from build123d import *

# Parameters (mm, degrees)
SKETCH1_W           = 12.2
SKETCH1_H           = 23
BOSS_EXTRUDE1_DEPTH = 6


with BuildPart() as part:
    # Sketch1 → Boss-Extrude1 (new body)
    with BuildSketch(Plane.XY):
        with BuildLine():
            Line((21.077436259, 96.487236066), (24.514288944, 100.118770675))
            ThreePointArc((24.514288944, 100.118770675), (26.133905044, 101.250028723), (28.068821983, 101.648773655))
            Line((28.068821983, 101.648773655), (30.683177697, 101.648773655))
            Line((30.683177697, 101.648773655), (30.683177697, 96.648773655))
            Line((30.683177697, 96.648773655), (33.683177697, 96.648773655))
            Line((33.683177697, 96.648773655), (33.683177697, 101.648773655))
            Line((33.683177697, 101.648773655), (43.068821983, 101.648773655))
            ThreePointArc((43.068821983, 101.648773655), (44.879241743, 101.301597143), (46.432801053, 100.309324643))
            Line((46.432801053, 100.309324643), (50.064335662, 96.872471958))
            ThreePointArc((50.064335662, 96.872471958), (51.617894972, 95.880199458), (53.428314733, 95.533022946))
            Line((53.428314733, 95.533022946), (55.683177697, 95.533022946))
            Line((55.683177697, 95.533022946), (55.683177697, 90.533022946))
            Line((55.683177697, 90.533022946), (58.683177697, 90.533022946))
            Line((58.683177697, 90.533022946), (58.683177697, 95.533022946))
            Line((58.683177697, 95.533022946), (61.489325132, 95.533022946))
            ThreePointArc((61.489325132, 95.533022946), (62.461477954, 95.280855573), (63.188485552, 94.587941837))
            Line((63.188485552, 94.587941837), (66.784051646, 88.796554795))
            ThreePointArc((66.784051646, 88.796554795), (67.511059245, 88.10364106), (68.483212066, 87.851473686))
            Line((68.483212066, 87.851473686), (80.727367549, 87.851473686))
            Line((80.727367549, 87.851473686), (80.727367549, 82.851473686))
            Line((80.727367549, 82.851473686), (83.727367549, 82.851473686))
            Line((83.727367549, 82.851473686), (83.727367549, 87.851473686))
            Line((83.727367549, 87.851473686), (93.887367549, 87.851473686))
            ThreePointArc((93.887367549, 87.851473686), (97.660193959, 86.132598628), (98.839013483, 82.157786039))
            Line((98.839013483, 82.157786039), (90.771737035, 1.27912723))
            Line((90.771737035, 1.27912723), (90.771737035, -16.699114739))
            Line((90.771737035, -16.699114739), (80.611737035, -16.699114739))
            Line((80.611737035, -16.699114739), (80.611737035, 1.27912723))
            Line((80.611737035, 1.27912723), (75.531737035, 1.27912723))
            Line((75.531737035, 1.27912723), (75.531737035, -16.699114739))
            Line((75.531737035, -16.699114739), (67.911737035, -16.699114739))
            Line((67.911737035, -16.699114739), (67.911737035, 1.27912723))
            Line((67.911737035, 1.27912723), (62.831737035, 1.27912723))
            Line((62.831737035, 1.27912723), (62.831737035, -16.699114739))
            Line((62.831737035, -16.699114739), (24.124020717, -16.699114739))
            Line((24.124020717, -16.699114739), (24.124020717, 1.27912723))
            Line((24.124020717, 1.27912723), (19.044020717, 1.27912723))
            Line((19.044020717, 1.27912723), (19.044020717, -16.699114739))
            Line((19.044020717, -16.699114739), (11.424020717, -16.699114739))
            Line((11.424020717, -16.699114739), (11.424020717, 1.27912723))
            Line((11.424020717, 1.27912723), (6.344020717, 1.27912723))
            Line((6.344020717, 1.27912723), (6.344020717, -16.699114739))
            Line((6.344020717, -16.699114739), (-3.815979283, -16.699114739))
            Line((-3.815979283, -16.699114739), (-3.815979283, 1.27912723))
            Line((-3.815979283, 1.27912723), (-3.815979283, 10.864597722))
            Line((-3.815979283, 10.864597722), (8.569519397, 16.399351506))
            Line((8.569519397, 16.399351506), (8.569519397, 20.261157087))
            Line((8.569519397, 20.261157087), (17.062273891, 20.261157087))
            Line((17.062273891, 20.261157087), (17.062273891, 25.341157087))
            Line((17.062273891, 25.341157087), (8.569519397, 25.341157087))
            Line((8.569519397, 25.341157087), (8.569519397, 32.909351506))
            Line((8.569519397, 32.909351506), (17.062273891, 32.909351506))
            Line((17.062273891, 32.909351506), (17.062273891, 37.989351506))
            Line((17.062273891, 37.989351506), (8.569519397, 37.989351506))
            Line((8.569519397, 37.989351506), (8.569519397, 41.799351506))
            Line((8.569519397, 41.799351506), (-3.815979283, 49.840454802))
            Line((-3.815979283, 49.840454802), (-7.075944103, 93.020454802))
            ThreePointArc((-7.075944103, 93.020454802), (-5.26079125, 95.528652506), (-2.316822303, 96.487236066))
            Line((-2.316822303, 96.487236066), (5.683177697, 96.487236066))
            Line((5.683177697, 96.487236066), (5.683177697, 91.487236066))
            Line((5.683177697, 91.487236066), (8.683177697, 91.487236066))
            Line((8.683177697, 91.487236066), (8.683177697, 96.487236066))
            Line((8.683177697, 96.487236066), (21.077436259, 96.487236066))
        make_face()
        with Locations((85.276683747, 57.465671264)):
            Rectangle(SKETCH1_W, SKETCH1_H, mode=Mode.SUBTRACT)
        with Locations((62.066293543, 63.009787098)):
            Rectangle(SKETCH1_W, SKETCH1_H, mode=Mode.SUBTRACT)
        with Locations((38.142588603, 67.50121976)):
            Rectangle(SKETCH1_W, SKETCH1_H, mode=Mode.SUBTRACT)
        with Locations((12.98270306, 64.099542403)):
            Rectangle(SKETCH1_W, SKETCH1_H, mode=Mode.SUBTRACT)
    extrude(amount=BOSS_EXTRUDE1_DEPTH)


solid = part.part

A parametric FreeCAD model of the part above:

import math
import FreeCAD as App
import Part
import Sketcher

V = App.Vector
Q = App.Units.Quantity


def add_polygon(sketch, points):
    """Adds a closed chain of lines whose ends are joined by coincident constraints."""
    first, n = sketch.GeometryCount, len(points)
    for a, b in zip(points, points[1:] + points[:1]):
        sketch.addGeometry(Part.LineSegment(App.Vector(*a, 0), App.Vector(*b, 0)), False)
    for i in range(n):
        sketch.addConstraint(Sketcher.Constraint("Coincident", first + i, 2, first + (i + 1) % n, 1))

doc = App.newDocument("Part")
body = doc.addObject("PartDesign::Body", "Body")

sketch1 = body.newObject("Sketcher::SketchObject", "Sketch")
sketch1.AttachmentSupport = (doc.getObject("XY_Plane"), [""])
sketch1.MapMode = "FlatFace"
sketch1.addGeometry(Part.LineSegment(V(24.5, 100.1, 0), V(21.1, 96.5, 0)), False)
sketch1.addGeometry(Part.LineSegment(V(21.1, 96.5, 0), V(8.7, 96.5, 0)), False)
sketch1.addGeometry(Part.LineSegment(V(8.7, 96.5, 0), V(8.7, 91.5, 0)), False)
sketch1.addGeometry(Part.LineSegment(V(8.7, 91.5, 0), V(5.7, 91.5, 0)), False)
sketch1.addGeometry(Part.LineSegment(V(5.7, 91.5, 0), V(5.7, 96.5, 0)), False)
sketch1.addGeometry(Part.LineSegment(V(5.7, 96.5, 0), V(-2.3, 96.5, 0)), False)
sketch1.addGeometry(Part.ArcOfCircle(Part.Circle(V(-2.3, 91.5, 0), V(0, 0, 1), 5), math.radians(90), math.radians(162)), False)
sketch1.addGeometry(Part.LineSegment(V(-7.1, 93, 0), V(-3.8, 49.8, 0)), False)
sketch1.addGeometry(Part.LineSegment(V(-3.8, 49.8, 0), V(8.6, 41.8, 0)), False)
sketch1.addGeometry(Part.LineSegment(V(8.6, 41.8, 0), V(8.6, 38, 0)), False)
sketch1.addGeometry(Part.LineSegment(V(8.6, 38, 0), V(17.1, 38, 0)), False)
sketch1.addGeometry(Part.LineSegment(V(17.1, 38, 0), V(17.1, 32.9, 0)), False)
sketch1.addGeometry(Part.LineSegment(V(17.1, 32.9, 0), V(8.6, 32.9, 0)), False)
sketch1.addGeometry(Part.LineSegment(V(8.6, 32.9, 0), V(8.6, 25.3, 0)), False)
sketch1.addGeometry(Part.LineSegment(V(8.6, 25.3, 0), V(17.1, 25.3, 0)), False)
sketch1.addGeometry(Part.LineSegment(V(17.1, 25.3, 0), V(17.1, 20.3, 0)), False)
sketch1.addGeometry(Part.LineSegment(V(17.1, 20.3, 0), V(8.6, 20.3, 0)), False)
sketch1.addGeometry(Part.LineSegment(V(8.6, 20.3, 0), V(8.6, 16.4, 0)), False)
sketch1.addGeometry(Part.LineSegment(V(8.6, 16.4, 0), V(-3.8, 10.9, 0)), False)
sketch1.addGeometry(Part.LineSegment(V(-3.8, 10.9, 0), V(-3.8, -16.7, 0)), False)
sketch1.addGeometry(Part.LineSegment(V(-3.8, -16.7, 0), V(6.3, -16.7, 0)), False)
sketch1.addGeometry(Part.LineSegment(V(6.3, -16.7, 0), V(6.3, 1.3, 0)), False)
sketch1.addGeometry(Part.LineSegment(V(6.3, 1.3, 0), V(11.4, 1.3, 0)), False)
sketch1.addGeometry(Part.LineSegment(V(11.4, 1.3, 0), V(11.4, -16.7, 0)), False)
sketch1.addGeometry(Part.LineSegment(V(11.4, -16.7, 0), V(19, -16.7, 0)), False)
sketch1.addGeometry(Part.LineSegment(V(19, -16.7, 0), V(19, 1.3, 0)), False)
sketch1.addGeometry(Part.LineSegment(V(19, 1.3, 0), V(24.1, 1.3, 0)), False)
sketch1.addGeometry(Part.LineSegment(V(24.1, 1.3, 0), V(24.1, -16.7, 0)), False)
sketch1.addGeometry(Part.LineSegment(V(24.1, -16.7, 0), V(62.8, -16.7, 0)), False)
sketch1.addGeometry(Part.LineSegment(V(62.8, -16.7, 0), V(62.8, 1.3, 0)), False)
sketch1.addGeometry(Part.LineSegment(V(62.8, 1.3, 0), V(67.9, 1.3, 0)), False)
sketch1.addGeometry(Part.LineSegment(V(67.9, 1.3, 0), V(67.9, -16.7, 0)), False)
sketch1.addGeometry(Part.LineSegment(V(67.9, -16.7, 0), V(75.5, -16.7, 0)), False)
sketch1.addGeometry(Part.LineSegment(V(75.5, -16.7, 0), V(75.5, 1.3, 0)), False)
sketch1.addGeometry(Part.LineSegment(V(75.5, 1.3, 0), V(80.6, 1.3, 0)), False)
sketch1.addGeometry(Part.LineSegment(V(80.6, 1.3, 0), V(80.6, -16.7, 0)), False)
sketch1.addGeometry(Part.LineSegment(V(80.6, -16.7, 0), V(90.8, -16.7, 0)), False)
sketch1.addGeometry(Part.LineSegment(V(90.8, -16.7, 0), V(90.8, 1.3, 0)), False)
sketch1.addGeometry(Part.LineSegment(V(90.8, 1.3, 0), V(98.8, 82.2, 0)), False)
sketch1.addGeometry(Part.ArcOfCircle(Part.Circle(V(93.9, 82.9, 0), V(0, 0, 1), 5), math.radians(-8), math.radians(90)), False)
sketch1.addGeometry(Part.LineSegment(V(93.9, 87.9, 0), V(83.7, 87.9, 0)), False)
sketch1.addGeometry(Part.LineSegment(V(83.7, 87.9, 0), V(83.7, 82.9, 0)), False)
sketch1.addGeometry(Part.LineSegment(V(83.7, 82.9, 0), V(80.7, 82.9, 0)), False)
sketch1.addGeometry(Part.LineSegment(V(80.7, 82.9, 0), V(80.7, 87.9, 0)), False)
sketch1.addGeometry(Part.LineSegment(V(80.7, 87.9, 0), V(68.5, 87.9, 0)), False)
sketch1.addGeometry(Part.ArcOfCircle(Part.Circle(V(68.5, 89.9, 0), V(0, 0, 1), 2), math.radians(-148), math.radians(-90)), False)
sketch1.addGeometry(Part.LineSegment(V(66.8, 88.8, 0), V(63.2, 94.6, 0)), False)
sketch1.addGeometry(Part.ArcOfCircle(Part.Circle(V(61.5, 93.5, 0), V(0, 0, 1), 2), math.radians(32), math.radians(90)), False)
sketch1.addGeometry(Part.LineSegment(V(61.5, 95.5, 0), V(58.7, 95.5, 0)), False)
sketch1.addGeometry(Part.LineSegment(V(58.7, 95.5, 0), V(58.7, 90.5, 0)), False)
sketch1.addGeometry(Part.LineSegment(V(58.7, 90.5, 0), V(55.7, 90.5, 0)), False)
sketch1.addGeometry(Part.LineSegment(V(55.7, 90.5, 0), V(55.7, 95.5, 0)), False)
sketch1.addGeometry(Part.LineSegment(V(55.7, 95.5, 0), V(53.4, 95.5, 0)), False)
sketch1.addGeometry(Part.ArcOfCircle(Part.Circle(V(53.4, 100.4, 0), V(0, 0, 1), 4.9), math.radians(-133), math.radians(-90)), False)
sketch1.addGeometry(Part.LineSegment(V(50.1, 96.9, 0), V(46.4, 100.3, 0)), False)
sketch1.addGeometry(Part.ArcOfCircle(Part.Circle(V(43.1, 96.8, 0), V(0, 0, 1), 4.9), math.radians(47), math.radians(90)), False)
sketch1.addGeometry(Part.LineSegment(V(43.1, 101.6, 0), V(33.7, 101.6, 0)), False)
sketch1.addGeometry(Part.LineSegment(V(33.7, 101.6, 0), V(33.7, 96.6, 0)), False)
sketch1.addGeometry(Part.LineSegment(V(33.7, 96.6, 0), V(30.7, 96.6, 0)), False)
sketch1.addGeometry(Part.LineSegment(V(30.7, 96.6, 0), V(30.7, 101.6, 0)), False)
sketch1.addGeometry(Part.LineSegment(V(30.7, 101.6, 0), V(28.1, 101.6, 0)), False)
sketch1.addGeometry(Part.ArcOfCircle(Part.Circle(V(28.1, 96.8, 0), V(0, 0, 1), 4.9), math.radians(90), math.radians(137)), False)
add_polygon(sketch1, [(79.2, 46), (79.2, 69), (91.4, 69), (91.4, 46)])
add_polygon(sketch1, [(56, 51.5), (56, 74.5), (68.2, 74.5), (68.2, 51.5)])
add_polygon(sketch1, [(32, 56), (32, 79), (44.2, 79), (44.2, 56)])
add_polygon(sketch1, [(6.9, 52.6), (6.9, 75.6), (19.1, 75.6), (19.1, 52.6)])
sketch1.addConstraint([
    Sketcher.Constraint("Coincident", 0, 2, 1, 1),
    Sketcher.Constraint("Coincident", 1, 2, 2, 1),
    Sketcher.Constraint("Coincident", 2, 2, 3, 1),
    Sketcher.Constraint("Coincident", 3, 2, 4, 1),
    Sketcher.Constraint("Coincident", 4, 2, 5, 1),
    Sketcher.Constraint("Tangent", 5, 2, 6, 1),
    Sketcher.Constraint("Coincident", 6, 2, 7, 1),
    Sketcher.Constraint("Coincident", 7, 2, 8, 1),
    Sketcher.Constraint("Coincident", 8, 2, 9, 1),
    Sketcher.Constraint("Coincident", 9, 2, 10, 1),
    Sketcher.Constraint("Coincident", 10, 2, 11, 1),
    Sketcher.Constraint("Coincident", 11, 2, 12, 1),
    Sketcher.Constraint("Coincident", 12, 2, 13, 1),
    Sketcher.Constraint("Coincident", 13, 2, 14, 1),
    Sketcher.Constraint("Coincident", 14, 2, 15, 1),
    Sketcher.Constraint("Coincident", 15, 2, 16, 1),
    Sketcher.Constraint("Coincident", 16, 2, 17, 1),
    Sketcher.Constraint("Coincident", 17, 2, 18, 1),
    Sketcher.Constraint("Coincident", 18, 2, 19, 1),
    Sketcher.Constraint("Coincident", 19, 2, 20, 1),
    Sketcher.Constraint("Coincident", 20, 2, 21, 1),
    Sketcher.Constraint("Coincident", 21, 2, 22, 1),
    Sketcher.Constraint("Coincident", 22, 2, 23, 1),
    Sketcher.Constraint("Coincident", 23, 2, 24, 1),
    Sketcher.Constraint("Coincident", 24, 2, 25, 1),
    Sketcher.Constraint("Coincident", 25, 2, 26, 1),
    Sketcher.Constraint("Coincident", 26, 2, 27, 1),
    Sketcher.Constraint("Coincident", 27, 2, 28, 1),
    Sketcher.Constraint("Coincident", 28, 2, 29, 1),
    Sketcher.Constraint("Coincident", 29, 2, 30, 1),
    Sketcher.Constraint("Coincident", 30, 2, 31, 1),
    Sketcher.Constraint("Coincident", 31, 2, 32, 1),
    Sketcher.Constraint("Coincident", 32, 2, 33, 1),
    Sketcher.Constraint("Coincident", 33, 2, 34, 1),
    Sketcher.Constraint("Coincident", 34, 2, 35, 1),
    Sketcher.Constraint("Coincident", 35, 2, 36, 1),
    Sketcher.Constraint("Coincident", 36, 2, 37, 1),
    Sketcher.Constraint("Coincident", 37, 2, 38, 1),
    Sketcher.Constraint("Coincident", 38, 2, 39, 1),
    Sketcher.Constraint("Tangent", 39, 2, 40, 1),
    Sketcher.Constraint("Coincident", 40, 2, 41, 1),
    Sketcher.Constraint("Coincident", 41, 2, 42, 1),
    Sketcher.Constraint("Coincident", 42, 2, 43, 1),
    Sketcher.Constraint("Coincident", 43, 2, 44, 1),
    Sketcher.Constraint("Tangent", 44, 2, 45, 2),
    Sketcher.Constraint("Tangent", 45, 1, 46, 1),
    Sketcher.Constraint("Tangent", 46, 2, 47, 1),
    Sketcher.Constraint("Tangent", 47, 2, 48, 1),
    Sketcher.Constraint("Coincident", 48, 2, 49, 1),
    Sketcher.Constraint("Coincident", 49, 2, 50, 1),
    Sketcher.Constraint("Coincident", 50, 2, 51, 1),
    Sketcher.Constraint("Coincident", 51, 2, 52, 1),
    Sketcher.Constraint("Tangent", 52, 2, 53, 2),
    Sketcher.Constraint("Tangent", 53, 1, 54, 1),
    Sketcher.Constraint("Tangent", 54, 2, 55, 1),
    Sketcher.Constraint("Tangent", 55, 2, 56, 1),
    Sketcher.Constraint("Coincident", 56, 2, 57, 1),
    Sketcher.Constraint("Coincident", 57, 2, 58, 1),
    Sketcher.Constraint("Coincident", 58, 2, 59, 1),
    Sketcher.Constraint("Coincident", 59, 2, 60, 1),
    Sketcher.Constraint("Tangent", 60, 2, 61, 1),
    Sketcher.Constraint("Tangent", 61, 2, 0, 1),
    Sketcher.Constraint("Horizontal", 1),
    Sketcher.Constraint("Vertical", 2),
    Sketcher.Constraint("Horizontal", 3),
    Sketcher.Constraint("Vertical", 4),
    Sketcher.Constraint("Horizontal", 5),
    Sketcher.Constraint("Vertical", 9),
    Sketcher.Constraint("Horizontal", 10),
    Sketcher.Constraint("Vertical", 11),
    Sketcher.Constraint("Horizontal", 12),
    Sketcher.Constraint("Vertical", 13),
    Sketcher.Constraint("Horizontal", 14),
    Sketcher.Constraint("Vertical", 15),
    Sketcher.Constraint("Horizontal", 16),
    Sketcher.Constraint("Vertical", 17),
    Sketcher.Constraint("Vertical", 19),
    Sketcher.Constraint("Horizontal", 20),
    Sketcher.Constraint("Vertical", 21),
    Sketcher.Constraint("Horizontal", 22),
    Sketcher.Constraint("Vertical", 23),
    Sketcher.Constraint("Horizontal", 24),
    Sketcher.Constraint("Vertical", 25),
    Sketcher.Constraint("Horizontal", 26),
    Sketcher.Constraint("Vertical", 27),
    Sketcher.Constraint("Horizontal", 28),
    Sketcher.Constraint("Vertical", 29),
    Sketcher.Constraint("Horizontal", 30),
    Sketcher.Constraint("Vertical", 31),
    Sketcher.Constraint("Horizontal", 32),
    Sketcher.Constraint("Vertical", 33),
    Sketcher.Constraint("Horizontal", 34),
    Sketcher.Constraint("Vertical", 35),
    Sketcher.Constraint("Horizontal", 36),
    Sketcher.Constraint("Vertical", 37),
    Sketcher.Constraint("Horizontal", 40),
    Sketcher.Constraint("Vertical", 41),
    Sketcher.Constraint("Horizontal", 42),
    Sketcher.Constraint("Vertical", 43),
    Sketcher.Constraint("Horizontal", 44),
    Sketcher.Constraint("Horizontal", 48),
    Sketcher.Constraint("Vertical", 49),
    Sketcher.Constraint("Horizontal", 50),
    Sketcher.Constraint("Vertical", 51),
    Sketcher.Constraint("Horizontal", 52),
    Sketcher.Constraint("Horizontal", 56),
    Sketcher.Constraint("Vertical", 57),
    Sketcher.Constraint("Horizontal", 58),
    Sketcher.Constraint("Vertical", 59),
    Sketcher.Constraint("Horizontal", 60),
    Sketcher.Constraint("Vertical", 62),
    Sketcher.Constraint("Horizontal", 63),
    Sketcher.Constraint("Vertical", 64),
    Sketcher.Constraint("Horizontal", 65),
    Sketcher.Constraint("Vertical", 66),
    Sketcher.Constraint("Horizontal", 67),
    Sketcher.Constraint("Vertical", 68),
    Sketcher.Constraint("Horizontal", 69),
    Sketcher.Constraint("Vertical", 70),
    Sketcher.Constraint("Horizontal", 71),
    Sketcher.Constraint("Vertical", 72),
    Sketcher.Constraint("Horizontal", 73),
    Sketcher.Constraint("Vertical", 74),
    Sketcher.Constraint("Horizontal", 75),
    Sketcher.Constraint("Vertical", 76),
    Sketcher.Constraint("Horizontal", 77),
    Sketcher.Constraint("Equal", 6, 39),
    Sketcher.Constraint("Equal", 45, 47),
    Sketcher.Constraint("Equal", 53, 55),
    Sketcher.Constraint("Equal", 55, 61),
    Sketcher.Constraint("Perpendicular", 0, 54),
    Sketcher.Constraint("Horizontal", 55, 3, 61, 3),
    Sketcher.Constraint("Horizontal", 6, 3, 2, 2),
    Sketcher.Constraint("Horizontal", 1, 2, 4, 2),
    Sketcher.Constraint("Horizontal", 20, 2, 23, 2),
    Sketcher.Constraint("Horizontal", 22, 2, 25, 2),
    Sketcher.Constraint("Horizontal", 24, 2, 27, 2),
    Sketcher.Constraint("Horizontal", 26, 2, 29, 2),
    Sketcher.Constraint("Horizontal", 28, 2, 31, 2),
    Sketcher.Constraint("Horizontal", 30, 2, 33, 2),
    Sketcher.Constraint("Horizontal", 32, 2, 35, 2),
    Sketcher.Constraint("Horizontal", 34, 2, 37, 2),
    Sketcher.Constraint("Horizontal", 39, 3, 41, 2),
    Sketcher.Constraint("Horizontal", 40, 2, 43, 2),
    Sketcher.Constraint("Horizontal", 48, 2, 51, 2),
    Sketcher.Constraint("Vertical", 9, 2, 12, 2),
    Sketcher.Constraint("Vertical", 11, 2, 14, 2),
    Sketcher.Constraint("Vertical", 13, 2, 16, 2),
    Sketcher.Constraint("Vertical", 7, 2, 18, 2),
    Sketcher.Constraint("Equal", 22, 26),
    Sketcher.Constraint("Equal", 26, 30),
    Sketcher.Constraint("Equal", 24, 32),
    Sketcher.Constraint("Equal", 30, 34),
    Sketcher.Constraint("Equal", 20, 36),
    Sketcher.Constraint("Equal", 36, 40),
    Sketcher.Constraint("Equal", 3, 42),
    Sketcher.Constraint("Equal", 42, 50),
    Sketcher.Constraint("Equal", 50, 58),
    Sketcher.Constraint("Equal", 65, 67),
    Sketcher.Constraint("Equal", 69, 71),
    Sketcher.Constraint("Equal", 73, 75),
    Sketcher.Constraint("Equal", 34, 11),
    Sketcher.Constraint("Equal", 11, 15),
    Sketcher.Constraint("Equal", 43, 49),
    Sketcher.Constraint("Equal", 51, 57),
    Sketcher.Constraint("Equal", 64, 66),
    Sketcher.Constraint("Equal", 68, 70),
    Sketcher.Constraint("Equal", 72, 74),
    Sketcher.Constraint("Equal", 0, 54),
    Sketcher.Constraint("Radius", 6, Q("5 mm")),
    Sketcher.Constraint("Radius", 45, Q("2 mm")),
    Sketcher.Constraint("DistanceX", 3, 2, 3, 1, Q("3 mm")),
    Sketcher.Constraint("DistanceX", 5, 2, 5, 1, Q("8 mm")),
    Sketcher.Constraint("DistanceY", 62, 1, 62, 2, Q("23 mm")),
    Sketcher.Constraint("Distance", 0, Q("5 mm")),
    Sketcher.Constraint("DistanceX", 63, 1, 63, 2, Q("12.2 mm")),
    Sketcher.Constraint("DistanceX", 20, 1, 20, 2, Q("10.16 mm")),
    Sketcher.Constraint("DistanceX", 22, 1, 22, 2, Q("5.08 mm")),
    Sketcher.Constraint("DistanceX", 24, 1, 24, 2, Q("7.62 mm")),
    Sketcher.Constraint("DistanceY", 9, 2, 9, 1, Q("3.81 mm")),
    Sketcher.Constraint("Distance", 38, Q("81.28 mm")),
    Sketcher.Constraint("Radius", 53, Q("4.893982 mm")),
    Sketcher.Constraint("DistanceX", 1, 2, 1, 1, Q("12.394259 mm")),
    Sketcher.Constraint("DistanceY", 21, 1, 21, 2, Q("17.978242 mm")),
    Sketcher.Constraint("DistanceX", -1, 1, 54, 2, Q("46.432801 mm")),
    Sketcher.Constraint("DistanceX", 10, 1, 10, 2, Q("8.492754 mm")),
    Sketcher.Constraint("DistanceX", 28, 1, 28, 2, Q("38.707716 mm")),
    Sketcher.Constraint("DistanceX", 44, 2, 44, 1, Q("12.244155 mm")),
    Sketcher.Constraint("DistanceX", 48, 2, 48, 1, Q("2.806147 mm")),
    Sketcher.Constraint("DistanceX", 52, 2, 52, 1, Q("2.254863 mm")),
    Sketcher.Constraint("DistanceX", 56, 2, 56, 1, Q("9.385644 mm")),
    Sketcher.Constraint("DistanceX", 60, 2, 60, 1, Q("2.614356 mm")),
    Sketcher.Constraint("DistanceY", 13, 2, 13, 1, Q("7.568194 mm")),
    Sketcher.Constraint("DistanceY", 17, 2, 17, 1, Q("3.861806 mm")),
    Sketcher.Constraint("DistanceY", 19, 2, 19, 1, Q("27.563712 mm")),
    Sketcher.Constraint("DistanceX", -1, 1, 55, 3, Q("43.068822 mm")),
    Sketcher.Constraint("DistanceY", -1, 1, 55, 3, Q("96.754792 mm")),
    Sketcher.Constraint("DistanceX", 7, 2, -1, 1, Q("3.815979 mm")),
    Sketcher.Constraint("DistanceX", -1, 1, 8, 2, Q("8.569519 mm")),
    Sketcher.Constraint("DistanceY", -1, 1, 8, 2, Q("41.799352 mm")),
    Sketcher.Constraint("DistanceX", -1, 1, 45, 1, Q("66.784052 mm")),
    Sketcher.Constraint("DistanceY", -1, 1, 46, 2, Q("94.587942 mm")),
    Sketcher.Constraint("DistanceY", -1, 1, 62, 2, Q("68.965671 mm")),
    Sketcher.Constraint("DistanceX", -1, 1, 70, 2, Q("32.042589 mm")),
    Sketcher.Constraint("DistanceY", -1, 1, 70, 2, Q("79.00122 mm")),
    Sketcher.Constraint("Distance", 7, Q("43.302884 mm")),
    Sketcher.Constraint("Distance", 8, Q("14.766852 mm")),
    Sketcher.Constraint("Distance", 18, Q("13.565916 mm")),
    Sketcher.Constraint("DistanceX", -1, 1, 62, 2, Q("79.176684 mm")),
    Sketcher.Constraint("DistanceX", -1, 1, 66, 2, Q("55.966294 mm")),
    Sketcher.Constraint("DistanceY", -1, 1, 66, 2, Q("74.509787 mm")),
    Sketcher.Constraint("DistanceX", -1, 1, 74, 2, Q("6.882703 mm")),
    Sketcher.Constraint("DistanceY", -1, 1, 74, 2, Q("75.599542 mm")),
])
pad1 = body.newObject("PartDesign::Pad", "Pad")
pad1.Profile = sketch1
pad1.Length = 6

doc.recompute()
